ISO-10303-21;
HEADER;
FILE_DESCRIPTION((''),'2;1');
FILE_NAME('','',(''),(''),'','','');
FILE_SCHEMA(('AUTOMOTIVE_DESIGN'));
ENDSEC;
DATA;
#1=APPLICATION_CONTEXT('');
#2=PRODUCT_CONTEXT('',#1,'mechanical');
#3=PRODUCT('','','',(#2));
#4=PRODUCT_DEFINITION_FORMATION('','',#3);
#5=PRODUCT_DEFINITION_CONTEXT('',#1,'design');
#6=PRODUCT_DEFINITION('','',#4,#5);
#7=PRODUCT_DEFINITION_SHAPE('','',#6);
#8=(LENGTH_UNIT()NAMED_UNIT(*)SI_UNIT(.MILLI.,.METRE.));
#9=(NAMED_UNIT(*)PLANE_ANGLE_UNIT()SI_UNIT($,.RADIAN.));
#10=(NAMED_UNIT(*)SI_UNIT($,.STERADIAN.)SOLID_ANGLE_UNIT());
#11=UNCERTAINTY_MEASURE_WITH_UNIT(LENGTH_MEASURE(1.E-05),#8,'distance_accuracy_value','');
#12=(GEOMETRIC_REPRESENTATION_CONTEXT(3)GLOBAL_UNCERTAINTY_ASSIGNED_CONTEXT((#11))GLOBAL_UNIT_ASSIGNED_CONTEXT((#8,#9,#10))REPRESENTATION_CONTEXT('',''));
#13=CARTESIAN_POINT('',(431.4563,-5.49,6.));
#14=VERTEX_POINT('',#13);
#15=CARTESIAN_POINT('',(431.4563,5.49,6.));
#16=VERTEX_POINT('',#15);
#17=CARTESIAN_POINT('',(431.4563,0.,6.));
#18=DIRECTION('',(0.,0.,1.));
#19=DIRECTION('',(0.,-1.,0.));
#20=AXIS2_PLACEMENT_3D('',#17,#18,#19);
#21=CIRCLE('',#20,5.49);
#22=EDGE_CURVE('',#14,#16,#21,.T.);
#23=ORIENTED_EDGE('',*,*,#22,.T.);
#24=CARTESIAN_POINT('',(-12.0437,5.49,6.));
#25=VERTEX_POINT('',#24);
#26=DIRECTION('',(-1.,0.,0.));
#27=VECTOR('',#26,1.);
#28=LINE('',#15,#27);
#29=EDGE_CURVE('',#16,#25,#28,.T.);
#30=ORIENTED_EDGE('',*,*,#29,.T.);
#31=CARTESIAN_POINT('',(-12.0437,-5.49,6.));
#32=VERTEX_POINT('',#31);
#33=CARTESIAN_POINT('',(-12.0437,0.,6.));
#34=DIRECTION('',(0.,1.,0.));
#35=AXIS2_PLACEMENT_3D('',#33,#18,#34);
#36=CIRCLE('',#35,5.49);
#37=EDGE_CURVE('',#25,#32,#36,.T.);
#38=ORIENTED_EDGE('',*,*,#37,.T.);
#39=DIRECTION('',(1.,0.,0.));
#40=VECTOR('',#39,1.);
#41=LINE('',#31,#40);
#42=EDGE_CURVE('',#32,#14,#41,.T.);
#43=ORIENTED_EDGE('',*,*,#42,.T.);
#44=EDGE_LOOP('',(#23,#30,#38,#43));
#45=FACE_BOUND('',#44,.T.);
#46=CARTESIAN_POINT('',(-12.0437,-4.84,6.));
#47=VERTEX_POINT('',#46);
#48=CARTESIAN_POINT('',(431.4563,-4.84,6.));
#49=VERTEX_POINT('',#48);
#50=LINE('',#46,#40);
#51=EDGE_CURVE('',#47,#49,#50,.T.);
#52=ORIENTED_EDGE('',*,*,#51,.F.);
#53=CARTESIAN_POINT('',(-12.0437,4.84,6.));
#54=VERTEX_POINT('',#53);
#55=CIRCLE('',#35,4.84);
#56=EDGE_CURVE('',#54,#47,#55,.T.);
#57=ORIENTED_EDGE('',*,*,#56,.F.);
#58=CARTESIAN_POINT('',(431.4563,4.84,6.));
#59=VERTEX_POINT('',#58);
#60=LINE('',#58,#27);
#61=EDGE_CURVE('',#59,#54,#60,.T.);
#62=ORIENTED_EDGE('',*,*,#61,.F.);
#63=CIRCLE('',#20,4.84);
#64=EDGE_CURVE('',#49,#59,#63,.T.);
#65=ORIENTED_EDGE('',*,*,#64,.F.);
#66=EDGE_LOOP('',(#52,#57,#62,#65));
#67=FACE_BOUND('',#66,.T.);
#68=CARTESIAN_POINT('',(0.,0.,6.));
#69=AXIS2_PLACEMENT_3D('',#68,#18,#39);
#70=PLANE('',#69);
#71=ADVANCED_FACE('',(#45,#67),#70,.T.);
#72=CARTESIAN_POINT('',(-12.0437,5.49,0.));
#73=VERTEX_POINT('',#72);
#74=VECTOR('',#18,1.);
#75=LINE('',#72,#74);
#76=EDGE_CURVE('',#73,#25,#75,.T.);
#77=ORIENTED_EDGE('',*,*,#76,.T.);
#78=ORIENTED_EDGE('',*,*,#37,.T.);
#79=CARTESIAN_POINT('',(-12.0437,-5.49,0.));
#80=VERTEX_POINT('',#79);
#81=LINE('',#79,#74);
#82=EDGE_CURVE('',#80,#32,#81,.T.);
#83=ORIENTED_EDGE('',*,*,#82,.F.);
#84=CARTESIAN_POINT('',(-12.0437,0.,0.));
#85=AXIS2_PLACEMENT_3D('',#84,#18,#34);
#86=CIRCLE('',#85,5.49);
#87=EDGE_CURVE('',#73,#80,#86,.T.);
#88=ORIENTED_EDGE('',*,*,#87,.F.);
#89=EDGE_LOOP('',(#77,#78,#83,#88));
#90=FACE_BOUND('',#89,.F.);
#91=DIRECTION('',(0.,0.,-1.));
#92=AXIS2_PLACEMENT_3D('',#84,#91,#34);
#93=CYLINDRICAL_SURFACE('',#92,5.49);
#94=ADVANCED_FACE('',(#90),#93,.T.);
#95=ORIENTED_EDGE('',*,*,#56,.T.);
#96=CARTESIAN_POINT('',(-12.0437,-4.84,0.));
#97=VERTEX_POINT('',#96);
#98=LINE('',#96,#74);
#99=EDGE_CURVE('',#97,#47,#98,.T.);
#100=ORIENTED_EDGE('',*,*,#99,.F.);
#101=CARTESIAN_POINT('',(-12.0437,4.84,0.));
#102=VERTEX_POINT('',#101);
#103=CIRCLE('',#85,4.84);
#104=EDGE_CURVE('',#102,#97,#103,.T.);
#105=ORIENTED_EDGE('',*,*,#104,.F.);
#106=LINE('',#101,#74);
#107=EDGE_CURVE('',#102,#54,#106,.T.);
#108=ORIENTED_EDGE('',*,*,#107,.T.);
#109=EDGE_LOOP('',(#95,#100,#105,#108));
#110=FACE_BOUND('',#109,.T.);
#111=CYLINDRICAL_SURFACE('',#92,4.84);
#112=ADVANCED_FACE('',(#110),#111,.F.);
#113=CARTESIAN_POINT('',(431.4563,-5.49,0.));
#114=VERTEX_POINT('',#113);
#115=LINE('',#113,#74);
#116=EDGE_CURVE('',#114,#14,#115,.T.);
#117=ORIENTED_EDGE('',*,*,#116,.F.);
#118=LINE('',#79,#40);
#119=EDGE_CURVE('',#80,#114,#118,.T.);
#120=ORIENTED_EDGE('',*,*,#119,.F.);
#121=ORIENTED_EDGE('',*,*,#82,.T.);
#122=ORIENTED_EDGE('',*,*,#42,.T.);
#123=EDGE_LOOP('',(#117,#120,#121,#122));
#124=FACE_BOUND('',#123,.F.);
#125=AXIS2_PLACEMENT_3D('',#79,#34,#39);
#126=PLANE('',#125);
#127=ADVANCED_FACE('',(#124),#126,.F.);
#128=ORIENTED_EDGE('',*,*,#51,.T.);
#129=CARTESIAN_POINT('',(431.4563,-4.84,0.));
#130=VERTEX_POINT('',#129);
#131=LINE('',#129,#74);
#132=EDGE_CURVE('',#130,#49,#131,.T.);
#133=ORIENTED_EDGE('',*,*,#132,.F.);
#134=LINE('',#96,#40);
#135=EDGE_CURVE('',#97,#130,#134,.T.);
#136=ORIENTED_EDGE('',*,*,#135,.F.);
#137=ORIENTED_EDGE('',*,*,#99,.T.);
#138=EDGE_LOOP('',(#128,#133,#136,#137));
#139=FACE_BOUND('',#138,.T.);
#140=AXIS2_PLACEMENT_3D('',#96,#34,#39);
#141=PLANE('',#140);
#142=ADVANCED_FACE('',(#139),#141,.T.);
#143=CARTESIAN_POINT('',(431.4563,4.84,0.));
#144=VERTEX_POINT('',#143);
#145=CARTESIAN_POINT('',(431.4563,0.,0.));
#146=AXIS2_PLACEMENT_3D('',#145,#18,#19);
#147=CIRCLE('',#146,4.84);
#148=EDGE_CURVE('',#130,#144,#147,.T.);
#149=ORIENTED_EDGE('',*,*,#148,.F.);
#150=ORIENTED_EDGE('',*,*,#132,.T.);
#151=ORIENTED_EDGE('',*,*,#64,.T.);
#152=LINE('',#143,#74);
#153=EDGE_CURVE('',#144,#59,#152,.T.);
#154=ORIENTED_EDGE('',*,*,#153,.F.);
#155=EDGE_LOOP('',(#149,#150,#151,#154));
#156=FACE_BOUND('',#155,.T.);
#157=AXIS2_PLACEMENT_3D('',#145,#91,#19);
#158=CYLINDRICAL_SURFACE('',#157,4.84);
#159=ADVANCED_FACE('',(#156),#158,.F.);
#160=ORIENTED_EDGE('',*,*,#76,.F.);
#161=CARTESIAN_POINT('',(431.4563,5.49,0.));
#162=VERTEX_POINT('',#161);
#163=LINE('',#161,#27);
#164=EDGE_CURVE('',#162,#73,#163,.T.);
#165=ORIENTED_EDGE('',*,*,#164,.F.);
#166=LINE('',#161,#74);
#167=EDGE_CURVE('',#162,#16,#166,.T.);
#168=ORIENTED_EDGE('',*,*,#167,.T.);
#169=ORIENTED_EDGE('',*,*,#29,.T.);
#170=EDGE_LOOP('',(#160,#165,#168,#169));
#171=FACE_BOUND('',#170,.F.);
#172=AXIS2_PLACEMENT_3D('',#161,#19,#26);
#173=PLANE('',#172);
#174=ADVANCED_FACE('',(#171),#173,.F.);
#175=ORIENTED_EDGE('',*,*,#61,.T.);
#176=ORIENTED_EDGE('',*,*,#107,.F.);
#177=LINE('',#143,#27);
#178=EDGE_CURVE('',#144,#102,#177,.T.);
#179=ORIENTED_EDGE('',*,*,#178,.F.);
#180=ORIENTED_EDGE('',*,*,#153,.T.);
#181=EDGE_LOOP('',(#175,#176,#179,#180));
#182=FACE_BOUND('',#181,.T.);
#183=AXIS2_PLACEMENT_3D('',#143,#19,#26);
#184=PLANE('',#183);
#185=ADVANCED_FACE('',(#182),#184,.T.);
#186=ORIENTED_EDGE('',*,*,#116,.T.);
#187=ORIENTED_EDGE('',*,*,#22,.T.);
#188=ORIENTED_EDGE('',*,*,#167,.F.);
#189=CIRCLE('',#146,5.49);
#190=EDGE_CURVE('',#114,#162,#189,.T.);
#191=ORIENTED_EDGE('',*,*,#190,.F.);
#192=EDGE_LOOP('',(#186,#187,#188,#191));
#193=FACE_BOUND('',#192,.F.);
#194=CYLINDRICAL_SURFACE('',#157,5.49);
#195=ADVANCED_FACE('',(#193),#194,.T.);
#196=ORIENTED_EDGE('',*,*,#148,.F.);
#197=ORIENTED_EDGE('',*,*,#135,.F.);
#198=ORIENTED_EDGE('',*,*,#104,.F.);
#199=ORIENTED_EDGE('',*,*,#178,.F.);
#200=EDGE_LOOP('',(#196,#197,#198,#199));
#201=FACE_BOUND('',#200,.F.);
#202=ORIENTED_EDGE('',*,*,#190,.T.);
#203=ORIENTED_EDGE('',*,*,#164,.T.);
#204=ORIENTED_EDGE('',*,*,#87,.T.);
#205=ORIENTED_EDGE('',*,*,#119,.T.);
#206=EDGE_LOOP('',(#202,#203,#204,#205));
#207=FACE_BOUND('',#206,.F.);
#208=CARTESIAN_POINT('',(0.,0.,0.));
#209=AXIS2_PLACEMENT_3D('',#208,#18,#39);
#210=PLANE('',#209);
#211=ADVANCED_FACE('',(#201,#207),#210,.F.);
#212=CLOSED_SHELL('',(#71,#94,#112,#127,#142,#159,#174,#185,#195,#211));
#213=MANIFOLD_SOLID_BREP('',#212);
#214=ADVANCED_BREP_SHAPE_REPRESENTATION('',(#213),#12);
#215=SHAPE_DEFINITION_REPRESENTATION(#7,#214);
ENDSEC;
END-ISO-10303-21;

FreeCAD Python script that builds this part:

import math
import FreeCAD as App
import Part
import Sketcher
Q = App.Units.Quantity

doc = App.newDocument("Part")
body = doc.addObject("PartDesign::Body", "Body")

sketch1 = body.newObject("Sketcher::SketchObject", "Sketch")
sketch1.AttachmentSupport = (doc.getObject("XY_Plane"), [""])
sketch1.MapMode = "FlatFace"
sketch1.addGeometry([
    Part.ArcOfCircle(Part.Circle(App.Vector(-12.0437, 0, 0), App.Vector(0, 0, 1), 5.49), math.radians(90), math.radians(270)),
    Part.LineSegment(App.Vector(-12.0437, -5.49, 0), App.Vector(431.4563, -5.49, 0)),
    Part.ArcOfCircle(Part.Circle(App.Vector(431.4563, 0, 0), App.Vector(0, 0, 1), 5.49), math.radians(-90), math.radians(90)),
    Part.LineSegment(App.Vector(431.4563, 5.49, 0), App.Vector(-12.0437, 5.49, 0)),
    Part.LineSegment(App.Vector(431.4563, -4.84, 0), App.Vector(-12.0437, -4.84, 0)),
    Part.ArcOfCircle(Part.Circle(App.Vector(-12.0437, 0, 0), App.Vector(0, 0, 1), 4.84), math.radians(90), math.radians(270)),
    Part.LineSegment(App.Vector(-12.0437, 4.84, 0), App.Vector(431.4563, 4.84, 0)),
    Part.ArcOfCircle(Part.Circle(App.Vector(431.4563, 0, 0), App.Vector(0, 0, 1), 4.84), math.radians(-90), math.radians(90)),
], False)
sketch1.addConstraint([
    Sketcher.Constraint("Tangent", 0, 2, 1, 1),
    Sketcher.Constraint("Tangent", 1, 2, 2, 1),
    Sketcher.Constraint("Tangent", 2, 2, 3, 1),
    Sketcher.Constraint("Tangent", 3, 2, 0, 1),
    Sketcher.Constraint("Tangent", 4, 2, 5, 2),
    Sketcher.Constraint("Tangent", 5, 1, 6, 1),
    Sketcher.Constraint("Tangent", 6, 2, 7, 2),
    Sketcher.Constraint("Tangent", 7, 1, 4, 1),
    Sketcher.Constraint("Horizontal", 1),
    Sketcher.Constraint("Horizontal", 3),
    Sketcher.Constraint("Horizontal", 4),
    Sketcher.Constraint("Horizontal", 6),
    Sketcher.Constraint("Coincident", 5, 3, 0, 3),
    Sketcher.Constraint("PointOnObject", 0, 3, -1),
    Sketcher.Constraint("Vertical", 7, 3, 1, 2),
    Sketcher.Constraint("Radius", 5, Q("4.84 mm")),
    Sketcher.Constraint("DistanceX", 1, 1, 1, 2, Q("443.5 mm")),
    Sketcher.Constraint("Radius", 0, Q("5.49 mm")),
    Sketcher.Constraint("DistanceX", 0, 3, -1, 1, Q("12.0437 mm")),
])
pad1 = body.newObject("PartDesign::Pad", "Pad")
pad1.Profile = sketch1
pad1.Length = 6

doc.recompute()
